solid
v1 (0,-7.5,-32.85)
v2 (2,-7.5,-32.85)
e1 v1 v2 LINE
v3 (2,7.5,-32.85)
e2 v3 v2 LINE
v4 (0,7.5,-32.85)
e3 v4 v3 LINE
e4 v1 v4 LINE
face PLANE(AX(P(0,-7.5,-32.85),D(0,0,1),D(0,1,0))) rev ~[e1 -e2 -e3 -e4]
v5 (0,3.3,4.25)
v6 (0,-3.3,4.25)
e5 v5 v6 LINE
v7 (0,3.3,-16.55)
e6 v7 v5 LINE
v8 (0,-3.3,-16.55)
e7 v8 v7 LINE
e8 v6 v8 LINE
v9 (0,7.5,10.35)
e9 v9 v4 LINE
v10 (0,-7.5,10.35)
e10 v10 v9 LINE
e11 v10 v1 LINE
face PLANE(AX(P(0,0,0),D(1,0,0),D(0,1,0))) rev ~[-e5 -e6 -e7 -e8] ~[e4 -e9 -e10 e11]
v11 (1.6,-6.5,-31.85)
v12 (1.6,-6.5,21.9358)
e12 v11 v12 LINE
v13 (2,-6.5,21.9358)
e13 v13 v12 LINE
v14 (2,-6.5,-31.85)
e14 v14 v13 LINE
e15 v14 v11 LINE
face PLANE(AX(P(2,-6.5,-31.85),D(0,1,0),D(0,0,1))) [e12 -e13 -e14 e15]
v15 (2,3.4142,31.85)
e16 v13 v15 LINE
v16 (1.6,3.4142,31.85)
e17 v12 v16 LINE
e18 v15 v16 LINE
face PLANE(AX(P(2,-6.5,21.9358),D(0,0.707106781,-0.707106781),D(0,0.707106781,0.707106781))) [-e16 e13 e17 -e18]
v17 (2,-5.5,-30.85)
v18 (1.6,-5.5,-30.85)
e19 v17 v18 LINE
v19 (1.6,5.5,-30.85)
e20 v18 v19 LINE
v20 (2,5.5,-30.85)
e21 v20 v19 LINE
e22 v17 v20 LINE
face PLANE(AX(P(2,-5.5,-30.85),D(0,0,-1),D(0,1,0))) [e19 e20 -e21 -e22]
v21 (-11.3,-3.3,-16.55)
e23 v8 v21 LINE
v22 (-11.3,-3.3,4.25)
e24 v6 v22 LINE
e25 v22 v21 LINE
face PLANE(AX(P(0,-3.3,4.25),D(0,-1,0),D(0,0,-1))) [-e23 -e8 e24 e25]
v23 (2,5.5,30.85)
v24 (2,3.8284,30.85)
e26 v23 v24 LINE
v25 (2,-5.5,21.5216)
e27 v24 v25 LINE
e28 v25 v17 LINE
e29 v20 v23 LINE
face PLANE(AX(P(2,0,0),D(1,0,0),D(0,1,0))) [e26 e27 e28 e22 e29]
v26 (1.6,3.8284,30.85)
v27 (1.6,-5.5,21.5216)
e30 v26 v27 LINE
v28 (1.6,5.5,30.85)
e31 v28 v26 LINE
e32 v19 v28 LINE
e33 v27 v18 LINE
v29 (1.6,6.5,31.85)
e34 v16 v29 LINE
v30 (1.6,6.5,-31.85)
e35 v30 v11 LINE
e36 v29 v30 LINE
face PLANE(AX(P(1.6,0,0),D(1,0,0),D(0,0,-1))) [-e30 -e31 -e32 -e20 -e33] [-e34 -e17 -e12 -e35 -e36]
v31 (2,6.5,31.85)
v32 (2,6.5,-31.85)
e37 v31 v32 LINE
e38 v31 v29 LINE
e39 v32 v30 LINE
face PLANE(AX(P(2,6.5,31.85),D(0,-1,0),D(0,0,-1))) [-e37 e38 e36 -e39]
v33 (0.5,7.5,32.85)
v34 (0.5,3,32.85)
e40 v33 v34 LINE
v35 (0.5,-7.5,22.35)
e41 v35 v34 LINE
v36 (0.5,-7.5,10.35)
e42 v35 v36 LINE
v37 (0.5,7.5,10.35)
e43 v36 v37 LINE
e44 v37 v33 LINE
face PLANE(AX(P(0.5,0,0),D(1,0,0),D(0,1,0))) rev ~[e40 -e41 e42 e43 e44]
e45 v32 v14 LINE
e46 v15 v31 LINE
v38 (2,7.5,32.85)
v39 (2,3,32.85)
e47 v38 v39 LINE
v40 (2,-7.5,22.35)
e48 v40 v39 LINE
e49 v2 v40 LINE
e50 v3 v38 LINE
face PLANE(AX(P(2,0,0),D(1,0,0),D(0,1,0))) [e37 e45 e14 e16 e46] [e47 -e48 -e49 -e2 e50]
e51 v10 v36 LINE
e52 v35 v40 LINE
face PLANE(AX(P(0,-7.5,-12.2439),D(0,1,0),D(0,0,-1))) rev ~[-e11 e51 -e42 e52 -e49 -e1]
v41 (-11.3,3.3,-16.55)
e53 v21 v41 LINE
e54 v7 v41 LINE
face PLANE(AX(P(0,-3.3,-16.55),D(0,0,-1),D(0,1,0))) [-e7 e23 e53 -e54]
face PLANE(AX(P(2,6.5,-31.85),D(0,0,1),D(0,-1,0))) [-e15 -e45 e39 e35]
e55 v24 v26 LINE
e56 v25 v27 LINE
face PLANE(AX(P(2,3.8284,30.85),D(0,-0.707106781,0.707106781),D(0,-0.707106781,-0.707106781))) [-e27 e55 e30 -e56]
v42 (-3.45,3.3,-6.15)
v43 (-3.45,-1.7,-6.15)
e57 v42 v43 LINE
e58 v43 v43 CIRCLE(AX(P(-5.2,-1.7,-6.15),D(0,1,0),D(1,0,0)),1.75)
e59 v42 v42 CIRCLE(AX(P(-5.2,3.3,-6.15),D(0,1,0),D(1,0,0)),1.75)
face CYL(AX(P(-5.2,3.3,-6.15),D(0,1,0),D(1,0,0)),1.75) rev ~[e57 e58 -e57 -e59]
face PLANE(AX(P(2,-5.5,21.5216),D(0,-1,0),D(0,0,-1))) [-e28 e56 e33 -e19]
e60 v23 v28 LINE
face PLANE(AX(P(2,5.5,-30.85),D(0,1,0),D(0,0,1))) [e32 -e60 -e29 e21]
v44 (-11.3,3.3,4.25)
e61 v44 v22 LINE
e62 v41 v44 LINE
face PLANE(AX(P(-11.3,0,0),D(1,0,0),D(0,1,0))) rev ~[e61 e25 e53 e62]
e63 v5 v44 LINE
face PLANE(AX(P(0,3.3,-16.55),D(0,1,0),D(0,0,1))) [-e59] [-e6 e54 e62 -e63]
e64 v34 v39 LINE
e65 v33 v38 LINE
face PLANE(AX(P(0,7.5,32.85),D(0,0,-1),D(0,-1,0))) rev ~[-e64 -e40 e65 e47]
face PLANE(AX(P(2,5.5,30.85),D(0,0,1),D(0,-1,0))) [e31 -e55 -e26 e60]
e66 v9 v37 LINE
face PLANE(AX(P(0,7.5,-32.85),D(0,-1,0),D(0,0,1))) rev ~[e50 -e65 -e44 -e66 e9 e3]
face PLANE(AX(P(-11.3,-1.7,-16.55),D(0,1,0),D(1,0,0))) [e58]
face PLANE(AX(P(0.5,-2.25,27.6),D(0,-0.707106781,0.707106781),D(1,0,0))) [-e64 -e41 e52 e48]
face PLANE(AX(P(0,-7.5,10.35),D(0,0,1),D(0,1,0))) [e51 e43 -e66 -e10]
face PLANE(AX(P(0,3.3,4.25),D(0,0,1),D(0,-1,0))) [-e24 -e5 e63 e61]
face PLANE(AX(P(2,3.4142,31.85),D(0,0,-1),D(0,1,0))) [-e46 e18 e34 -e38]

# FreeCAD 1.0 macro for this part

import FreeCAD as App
import Part
import Sketcher
from FreeCAD import Vector
Q = App.Units.Quantity


def edges_at(feature, points):
    """Names of the edges that pass closest to the given points."""
    edges = feature.Shape.Edges
    near = lambda p: min(range(len(edges)), key=lambda i: edges[i].distToShape(Part.Vertex(*p))[0])
    return sorted({f"Edge{near(p) + 1}" for p in points})


def add_polygon(sketch, points):
    """Adds a closed chain of lines whose ends are joined by coincident constraints."""
    first, n = sketch.GeometryCount, len(points)
    for a, b in zip(points, points[1:] + points[:1]):
        sketch.addGeometry(Part.LineSegment(App.Vector(*a, 0), App.Vector(*b, 0)), False)
    for i in range(n):
        sketch.addConstraint(Sketcher.Constraint("Coincident", first + i, 2, first + (i + 1) % n, 1))

doc = App.newDocument("Part")
body = doc.addObject("PartDesign::Body", "Body")

# Sketch on YZ plane
sketch1 = body.newObject("Sketcher::SketchObject", "Sketch")
sketch1.AttachmentSupport = (doc.getObject("YZ_Plane"), [""])
sketch1.MapMode = "FlatFace"
add_polygon(sketch1, [(-8, -33), (8, -33), (8, 33), (-8, 33)])  # lines 0-3
sketch1.addConstraint([
    Sketcher.Constraint("Horizontal", 0),
    Sketcher.Constraint("Vertical", 1),
    Sketcher.Constraint("Horizontal", 2),
    Sketcher.Constraint("Vertical", 3),
    Sketcher.Constraint("Symmetric", 0, 2, 2, 2, -1, 1),
    Sketcher.Constraint("DistanceX", 0, 1, 0, 2, 15.0),
    Sketcher.Constraint("DistanceY", 1, 1, 1, 2, 65.7),
])
pad1 = body.newObject("PartDesign::Pad", "Pad")
pad1.Profile = sketch1
pad1.Length = 2

# Sketch on YZ plane
sketch2 = body.newObject("Sketcher::SketchObject", "Sketch001")
sketch2.AttachmentSupport = (doc.getObject("YZ_Plane"), [""])
sketch2.MapMode = "FlatFace"
add_polygon(sketch2, [(3, -17), (3, 4), (-3, 4), (-3, -17)])  # lines 0-3
sketch2.addConstraint([
    Sketcher.Constraint("Vertical", 0),
    Sketcher.Constraint("Horizontal", 1),
    Sketcher.Constraint("Vertical", 2),
    Sketcher.Constraint("Horizontal", 3),
    Sketcher.Constraint("DistanceX", 1, 2, 1, 1, 6.6),
    Sketcher.Constraint("DistanceY", 0, 1, 0, 2, 20.8),
    Sketcher.Constraint("DistanceX", -1, 1, 0, 2, 3.3),
    Sketcher.Constraint("DistanceY", -1, 1, 0, 2, 4.25),
])
pad2 = body.newObject("PartDesign::Pad", "Pad001")
pad2.Profile = sketch2
pad2.Length = 11.3
pad2.Reversed = True

# Sketch on YZ plane
sketch3 = body.newObject("Sketcher::SketchObject", "Sketch002")
sketch3.AttachmentSupport = (doc.getObject("YZ_Plane"), [""])
sketch3.MapMode = "FlatFace"
add_polygon(sketch3, [(-8, 33), (-8, 10), (8, 10), (8, 33)])  # lines 0-3
sketch3.addConstraint([
    Sketcher.Constraint("Vertical", 0),
    Sketcher.Constraint("Horizontal", 1),
    Sketcher.Constraint("Vertical", 2),
    Sketcher.Constraint("Horizontal", 3),
    Sketcher.Constraint("DistanceX", 1, 1, 1, 2, 15.0),
    Sketcher.Constraint("DistanceY", 0, 2, 0, 1, 22.5),
    Sketcher.Constraint("DistanceX", 0, 2, -1, 1, 7.5),
    Sketcher.Constraint("DistanceY", -1, 1, 0, 2, 10.35),
])
pocket1 = body.newObject("PartDesign::Pocket", "Pocket")
pocket1.Profile = sketch3
pocket1.Length = 0.5
pocket1.Reversed = True
doc.recompute()

chamfer = body.newObject("PartDesign::Chamfer", "Chamfer")
chamfer.Base = (pocket1, edges_at(pocket1, [(1.25, -7.5, 32.85)]))
chamfer.Size = 10.5

# Sketch on YZ plane
sketch4 = body.newObject("Sketcher::SketchObject", "Sketch003")
sketch4.AttachmentSupport = (doc.getObject("YZ_Plane"), [""])
sketch4.MapMode = "FlatFace"
sketch4.AttachmentOffset = App.Placement(Vector(0, 0, 2), App.Rotation())
add_polygon(sketch4, [(-6.5, 21.9), (-6.5, -31.9), (6.5, -31.9), (6.5, 31.9), (3.4, 31.9)])  # lines 0-4
add_polygon(sketch4, [(-5.5, -30.9), (-5.5, 21.5), (3.8, 30.9), (5.5, 30.9), (5.5, -30.9)])  # lines 5-9
sketch4.addConstraint([
    Sketcher.Constraint("Vertical", 0),
    Sketcher.Constraint("Horizontal", 1),
    Sketcher.Constraint("Vertical", 2),
    Sketcher.Constraint("Horizontal", 3),
    Sketcher.Constraint("Vertical", 5),
    Sketcher.Constraint("Horizontal", 7),
    Sketcher.Constraint("Vertical", 8),
    Sketcher.Constraint("Horizontal", 9),
    Sketcher.Constraint("Symmetric", 0, 2, 2, 2, -1, 1),
    Sketcher.Constraint("Symmetric", 7, 2, 9, 2, -1, 1),
    Sketcher.Constraint("Parallel", 4, 6),
    Sketcher.Constraint("DistanceX", 4, 2, 5, 2, 1.0),
    Sketcher.Constraint("DistanceY", 6, 2, 3, 2, 1.0),
    Sketcher.Constraint("DistanceX", 1, 1, 1, 2, 13.0),
    Sketcher.Constraint("Angle", 4, Q("-135 deg")),
    Sketcher.Constraint("DistanceY", 2, 1, 2, 2, 63.7),
    Sketcher.Constraint("DistanceX", 3, 2, 3, 1, 3.0858),
    Sketcher.Constraint("DistanceX", 7, 1, 7, 2, 1.6716),
])
pocket2 = body.newObject("PartDesign::Pocket", "Pocket001")
pocket2.Profile = sketch4
pocket2.Length = 0.4

# Sketch on XZ plane
sketch5 = body.newObject("Sketcher::SketchObject", "Sketch004")
sketch5.AttachmentSupport = (doc.getObject("XZ_Plane"), [""])
sketch5.MapMode = "FlatFace"
sketch5.AttachmentOffset = App.Placement(Vector(0, 0, -3.3), App.Rotation())
sketch5.addGeometry(Part.Circle(Vector(-5.2, -6.2, 0), Vector(0, 0, 1), 1.8), False)
sketch5.addConstraint([
    Sketcher.Constraint("Diameter", 0, 3.5),
    Sketcher.Constraint("DistanceX", 0, 3, -1, 1, 5.2),
    Sketcher.Constraint("DistanceY", 0, 3, -1, 1, 6.15),
])
pocket3 = body.newObject("PartDesign::Pocket", "Pocket002")
pocket3.Profile = sketch5
pocket3.Length = 5
pocket3.Reversed = True

doc.recompute()
